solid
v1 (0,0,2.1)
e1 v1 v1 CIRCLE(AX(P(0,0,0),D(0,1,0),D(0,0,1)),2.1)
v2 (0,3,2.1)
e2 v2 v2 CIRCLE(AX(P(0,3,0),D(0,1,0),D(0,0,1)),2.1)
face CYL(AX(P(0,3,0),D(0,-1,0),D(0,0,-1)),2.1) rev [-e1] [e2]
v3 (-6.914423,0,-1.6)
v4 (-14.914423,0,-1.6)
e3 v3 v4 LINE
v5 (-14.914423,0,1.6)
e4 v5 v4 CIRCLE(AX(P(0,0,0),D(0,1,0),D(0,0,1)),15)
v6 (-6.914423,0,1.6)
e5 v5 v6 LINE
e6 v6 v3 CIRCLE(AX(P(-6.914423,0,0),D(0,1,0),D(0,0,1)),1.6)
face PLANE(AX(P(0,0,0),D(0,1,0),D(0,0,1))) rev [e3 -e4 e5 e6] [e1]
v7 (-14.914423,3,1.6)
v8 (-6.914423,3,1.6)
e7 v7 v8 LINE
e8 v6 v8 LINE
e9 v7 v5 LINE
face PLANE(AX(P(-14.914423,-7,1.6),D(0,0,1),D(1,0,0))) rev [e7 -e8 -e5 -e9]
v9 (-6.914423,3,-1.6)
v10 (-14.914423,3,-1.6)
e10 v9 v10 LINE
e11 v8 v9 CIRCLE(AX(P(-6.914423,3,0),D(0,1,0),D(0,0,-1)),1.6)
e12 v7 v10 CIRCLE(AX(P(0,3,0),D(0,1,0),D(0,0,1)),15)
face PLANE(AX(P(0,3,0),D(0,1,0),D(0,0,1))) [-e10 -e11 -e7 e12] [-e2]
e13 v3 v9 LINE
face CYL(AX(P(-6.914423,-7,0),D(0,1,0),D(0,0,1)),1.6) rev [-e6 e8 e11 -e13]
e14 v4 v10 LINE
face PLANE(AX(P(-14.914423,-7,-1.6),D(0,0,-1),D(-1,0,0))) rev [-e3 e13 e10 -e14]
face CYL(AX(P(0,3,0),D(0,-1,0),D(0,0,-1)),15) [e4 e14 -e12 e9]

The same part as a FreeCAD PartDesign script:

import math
import FreeCAD as App
import Part
import Sketcher
Q = App.Units.Quantity

doc = App.newDocument("Part")
body = doc.addObject("PartDesign::Body", "Body")

# Sketch on XZ plane
sketch1 = body.newObject("Sketcher::SketchObject", "Sketch")
sketch1.AttachmentSupport = (doc.getObject("XZ_Plane"), [""])
sketch1.MapMode = "FlatFace"
sketch1.addGeometry([
    Part.Circle(App.Vector(0, 0, 0), App.Vector(0, 0, 1), 15),
    Part.Circle(App.Vector(0, 0, 0), App.Vector(0, 0, 1), 2.1),
], False)
sketch1.addConstraint([
    Sketcher.Constraint("Coincident", 0, 3, -1, 1),
    Sketcher.Constraint("Coincident", 1, 3, -1, 1),
    Sketcher.Constraint("Diameter", 0, Q("30 mm")),
    Sketcher.Constraint("Diameter", 1, Q("4.2 mm")),
])
pad1 = body.newObject("PartDesign::Pad", "Pad")
pad1.Profile = sketch1
pad1.Length = 3
pad1.Reversed = True

# Sketch on XZ plane
sketch2 = body.newObject("Sketcher::SketchObject", "Sketch001")
sketch2.AttachmentSupport = (doc.getObject("XZ_Plane"), [""])
sketch2.MapMode = "FlatFace"
sketch2.AttachmentOffset = App.Placement(App.Vector(0, 0, -3), App.Rotation())
sketch2.addGeometry([
    Part.LineSegment(App.Vector(-6.9, -1.6, 0), App.Vector(-14.9, -1.6, 0)),
    Part.ArcOfCircle(Part.Circle(App.Vector(-14.9, 0, 0), App.Vector(0, 0, 1), 1.6), math.radians(90), math.radians(270)),
    Part.LineSegment(App.Vector(-14.9, 1.6, 0), App.Vector(-6.9, 1.6, 0)),
    Part.ArcOfCircle(Part.Circle(App.Vector(-6.9, 0, 0), App.Vector(0, 0, 1), 1.6), math.radians(-90), math.radians(90)),
], False)
sketch2.addConstraint([
    Sketcher.Constraint("Tangent", 0, 2, 1, 2),
    Sketcher.Constraint("Tangent", 1, 1, 2, 1),
    Sketcher.Constraint("Tangent", 2, 2, 3, 2),
    Sketcher.Constraint("Tangent", 3, 1, 0, 1),
    Sketcher.Constraint("Horizontal", 0),
    Sketcher.Constraint("Horizontal", 2),
    Sketcher.Constraint("PointOnObject", 1, 3, -1),
    Sketcher.Constraint("Radius", 1, Q("1.6 mm")),
    Sketcher.Constraint("DistanceX", 0, 2, 0, 1, Q("8 mm")),
    Sketcher.Constraint("DistanceX", 1, 3, -1, 1, Q("14.914423 mm")),
])
pocket1 = body.newObject("PartDesign::Pocket", "Pocket")
pocket1.Profile = sketch2
pocket1.Length = 10
pocket1.Reversed = True

doc.recompute()
